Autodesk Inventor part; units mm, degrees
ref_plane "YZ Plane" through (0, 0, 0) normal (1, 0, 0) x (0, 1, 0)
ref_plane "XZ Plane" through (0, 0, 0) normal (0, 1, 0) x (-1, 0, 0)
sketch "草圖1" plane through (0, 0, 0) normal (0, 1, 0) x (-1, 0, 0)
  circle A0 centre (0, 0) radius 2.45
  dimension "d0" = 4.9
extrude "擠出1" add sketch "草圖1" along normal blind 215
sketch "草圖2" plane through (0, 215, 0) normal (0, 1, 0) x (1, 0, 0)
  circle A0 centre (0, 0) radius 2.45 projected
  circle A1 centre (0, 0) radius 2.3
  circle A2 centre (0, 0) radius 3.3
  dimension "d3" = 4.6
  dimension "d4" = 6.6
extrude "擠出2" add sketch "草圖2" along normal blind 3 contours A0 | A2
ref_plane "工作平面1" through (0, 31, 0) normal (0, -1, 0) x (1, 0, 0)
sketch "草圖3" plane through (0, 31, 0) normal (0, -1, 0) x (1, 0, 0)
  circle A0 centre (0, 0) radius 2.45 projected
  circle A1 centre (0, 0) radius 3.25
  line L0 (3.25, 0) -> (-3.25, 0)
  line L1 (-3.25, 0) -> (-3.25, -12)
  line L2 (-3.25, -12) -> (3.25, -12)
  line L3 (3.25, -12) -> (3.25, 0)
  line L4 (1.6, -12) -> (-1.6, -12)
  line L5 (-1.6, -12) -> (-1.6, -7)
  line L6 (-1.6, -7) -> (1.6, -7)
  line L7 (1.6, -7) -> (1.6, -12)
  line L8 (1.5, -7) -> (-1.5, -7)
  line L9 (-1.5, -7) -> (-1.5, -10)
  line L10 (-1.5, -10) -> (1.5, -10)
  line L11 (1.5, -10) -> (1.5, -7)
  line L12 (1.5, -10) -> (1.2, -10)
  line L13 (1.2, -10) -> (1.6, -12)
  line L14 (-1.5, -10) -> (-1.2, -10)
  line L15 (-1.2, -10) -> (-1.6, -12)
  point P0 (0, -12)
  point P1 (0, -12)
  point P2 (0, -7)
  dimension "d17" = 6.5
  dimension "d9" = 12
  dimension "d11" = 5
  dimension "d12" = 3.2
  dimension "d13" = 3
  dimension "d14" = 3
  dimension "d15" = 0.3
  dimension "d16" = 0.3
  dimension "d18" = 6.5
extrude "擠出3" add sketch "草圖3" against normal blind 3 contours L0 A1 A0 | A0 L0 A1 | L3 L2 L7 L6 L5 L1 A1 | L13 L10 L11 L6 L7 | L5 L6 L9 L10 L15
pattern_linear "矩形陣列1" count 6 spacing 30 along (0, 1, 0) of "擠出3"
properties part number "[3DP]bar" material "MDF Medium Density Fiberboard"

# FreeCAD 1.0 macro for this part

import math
import FreeCAD as App
import Part
import Sketcher

V = App.Vector

doc = App.newDocument("Part")
body = doc.addObject("PartDesign::Body", "Body")

# Sketch on XZ plane
sketch1 = body.newObject("Sketcher::SketchObject", "Sketch")
sketch1.AttachmentSupport = (doc.getObject("XZ_Plane"), [""])
sketch1.MapMode = "FlatFace"
sketch1.addGeometry(Part.Circle(V(0, 0, 0), V(0, 0, 1), 2.45), False)
sketch1.addConstraint(Sketcher.Constraint("Coincident", 0, 3, -1, 1))
sketch1.addConstraint(Sketcher.Constraint("Diameter", 0, 4.9))
pad1 = body.newObject("PartDesign::Pad", "Pad")
pad1.Profile = sketch1
pad1.Length = 215
pad1.Reversed = True

# Sketch on XZ plane
sketch2 = body.newObject("Sketcher::SketchObject", "Sketch001")
sketch2.AttachmentSupport = (doc.getObject("XZ_Plane"), [""])
sketch2.MapMode = "FlatFace"
sketch2.AttachmentOffset = App.Placement(V(0, 0, -215), App.Rotation())
sketch2.addGeometry(Part.Circle(V(0, 0, 0), V(0, 0, 1), 3.3), False)
sketch2.addGeometry(Part.Circle(V(0, 0, 0), V(0, 0, 1), 2.3), False)
sketch2.addConstraint(Sketcher.Constraint("Coincident", 0, 3, -1, 1))
sketch2.addConstraint(Sketcher.Constraint("Coincident", 1, 3, -1, 1))
sketch2.addConstraint(Sketcher.Constraint("Diameter", 0, 6.6))
sketch2.addConstraint(Sketcher.Constraint("Diameter", 1, 4.6))
pad2 = body.newObject("PartDesign::Pad", "Pad001")
pad2.Profile = sketch2
pad2.Length = 3
pad2.Reversed = True

# Sketch on XZ plane
sketch3 = body.newObject("Sketcher::SketchObject", "Sketch002")
sketch3.AttachmentSupport = (doc.getObject("XZ_Plane"), [""])
sketch3.MapMode = "FlatFace"
sketch3.AttachmentOffset = App.Placement(V(0, 0, -31), App.Rotation())
sketch3.addGeometry(Part.ArcOfCircle(Part.Circle(V(0, 0, 0), V(0, 0, 1), 3.25), math.radians(0), math.radians(180)), False)
sketch3.addGeometry(Part.LineSegment(V(-3.25, 0, 0), V(-3.25, -12, 0)), False)
sketch3.addGeometry(Part.LineSegment(V(-3.25, -12, 0), V(-1.6, -12, 0)), False)
sketch3.addGeometry(Part.LineSegment(V(-1.6, -12, 0), V(-1.2, -10, 0)), False)
sketch3.addGeometry(Part.LineSegment(V(-1.2, -10, 0), V(-1.5, -10, 0)), False)
sketch3.addGeometry(Part.LineSegment(V(-1.5, -10, 0), V(-1.5, -7, 0)), False)
sketch3.addGeometry(Part.LineSegment(V(-1.5, -7, 0), V(1.5, -7, 0)), False)
sketch3.addGeometry(Part.LineSegment(V(1.5, -7, 0), V(1.5, -10, 0)), False)
sketch3.addGeometry(Part.LineSegment(V(1.5, -10, 0), V(1.2, -10, 0)), False)
sketch3.addGeometry(Part.LineSegment(V(1.2, -10, 0), V(1.6, -12, 0)), False)
sketch3.addGeometry(Part.LineSegment(V(1.6, -12, 0), V(3.25, -12, 0)), False)
sketch3.addGeometry(Part.LineSegment(V(3.25, -12, 0), V(3.25, 0, 0)), False)
sketch3.addGeometry(Part.Circle(V(0, 0, 0), V(0, 0, 1), 2.45), False)
sketch3.addConstraint(Sketcher.Constraint("Tangent", 0, 2, 1, 1))
sketch3.addConstraint(Sketcher.Constraint("Coincident", 1, 2, 2, 1))
sketch3.addConstraint(Sketcher.Constraint("Coincident", 2, 2, 3, 1))
sketch3.addConstraint(Sketcher.Constraint("Coincident", 3, 2, 4, 1))
sketch3.addConstraint(Sketcher.Constraint("Coincident", 4, 2, 5, 1))
sketch3.addConstraint(Sketcher.Constraint("Coincident", 5, 2, 6, 1))
sketch3.addConstraint(Sketcher.Constraint("Coincident", 6, 2, 7, 1))
sketch3.addConstraint(Sketcher.Constraint("Coincident", 7, 2, 8, 1))
sketch3.addConstraint(Sketcher.Constraint("Coincident", 8, 2, 9, 1))
sketch3.addConstraint(Sketcher.Constraint("Coincident", 9, 2, 10, 1))
sketch3.addConstraint(Sketcher.Constraint("Coincident", 10, 2, 11, 1))
sketch3.addConstraint(Sketcher.Constraint("Tangent", 11, 2, 0, 1))
sketch3.addConstraint(Sketcher.Constraint("Vertical", 1))
sketch3.addConstraint(Sketcher.Constraint("Horizontal", 2))
sketch3.addConstraint(Sketcher.Constraint("Horizontal", 4))
sketch3.addConstraint(Sketcher.Constraint("Vertical", 5))
sketch3.addConstraint(Sketcher.Constraint("Horizontal", 6))
sketch3.addConstraint(Sketcher.Constraint("Vertical", 7))
sketch3.addConstraint(Sketcher.Constraint("Horizontal", 8))
sketch3.addConstraint(Sketcher.Constraint("Horizontal", 10))
sketch3.addConstraint(Sketcher.Constraint("Vertical", 11))
sketch3.addConstraint(Sketcher.Constraint("Coincident", 0, 3, -1, 1))
sketch3.addConstraint(Sketcher.Constraint("Coincident", 12, 3, -1, 1))
sketch3.addConstraint(Sketcher.Constraint("Symmetric", 4, 2, 7, 2, -2))
sketch3.addConstraint(Sketcher.Constraint("Symmetric", 2, 2, 9, 2, -2))
sketch3.addConstraint(Sketcher.Constraint("Equal", 4, 8))
sketch3.addConstraint(Sketcher.Constraint("Equal", 6, 5))
sketch3.addConstraint(Sketcher.Constraint("DistanceX", 6, 1, 6, 2, 3.0))
sketch3.addConstraint(Sketcher.Constraint("DistanceY", 1, 2, 1, 1, 12.0))
sketch3.addConstraint(Sketcher.Constraint("Radius", 0, 3.25))
sketch3.addConstraint(Sketcher.Constraint("DistanceX", 4, 2, 4, 1, 0.3))
sketch3.addConstraint(Sketcher.Constraint("DistanceY", 2, 2, 5, 2, 5.0))
sketch3.addConstraint(Sketcher.Constraint("Diameter", 12, 4.9))
sketch3.addConstraint(Sketcher.Constraint("DistanceX", 2, 2, 9, 2, 3.2))
pad3 = body.newObject("PartDesign::Pad", "Pad002")
pad3.Profile = sketch3
pad3.Length = 3
pad3.Reversed = True
doc.recompute()

linearpattern = body.newObject("PartDesign::LinearPattern", "LinearPattern")
linearpattern.Originals = [pad3]
linearpattern.Direction = (doc.getObject("Y_Axis"), [""])
linearpattern.Mode = "offset"
linearpattern.Offset = 30
linearpattern.Occurrences = 6
body.Tip = linearpattern

doc.recompute()
